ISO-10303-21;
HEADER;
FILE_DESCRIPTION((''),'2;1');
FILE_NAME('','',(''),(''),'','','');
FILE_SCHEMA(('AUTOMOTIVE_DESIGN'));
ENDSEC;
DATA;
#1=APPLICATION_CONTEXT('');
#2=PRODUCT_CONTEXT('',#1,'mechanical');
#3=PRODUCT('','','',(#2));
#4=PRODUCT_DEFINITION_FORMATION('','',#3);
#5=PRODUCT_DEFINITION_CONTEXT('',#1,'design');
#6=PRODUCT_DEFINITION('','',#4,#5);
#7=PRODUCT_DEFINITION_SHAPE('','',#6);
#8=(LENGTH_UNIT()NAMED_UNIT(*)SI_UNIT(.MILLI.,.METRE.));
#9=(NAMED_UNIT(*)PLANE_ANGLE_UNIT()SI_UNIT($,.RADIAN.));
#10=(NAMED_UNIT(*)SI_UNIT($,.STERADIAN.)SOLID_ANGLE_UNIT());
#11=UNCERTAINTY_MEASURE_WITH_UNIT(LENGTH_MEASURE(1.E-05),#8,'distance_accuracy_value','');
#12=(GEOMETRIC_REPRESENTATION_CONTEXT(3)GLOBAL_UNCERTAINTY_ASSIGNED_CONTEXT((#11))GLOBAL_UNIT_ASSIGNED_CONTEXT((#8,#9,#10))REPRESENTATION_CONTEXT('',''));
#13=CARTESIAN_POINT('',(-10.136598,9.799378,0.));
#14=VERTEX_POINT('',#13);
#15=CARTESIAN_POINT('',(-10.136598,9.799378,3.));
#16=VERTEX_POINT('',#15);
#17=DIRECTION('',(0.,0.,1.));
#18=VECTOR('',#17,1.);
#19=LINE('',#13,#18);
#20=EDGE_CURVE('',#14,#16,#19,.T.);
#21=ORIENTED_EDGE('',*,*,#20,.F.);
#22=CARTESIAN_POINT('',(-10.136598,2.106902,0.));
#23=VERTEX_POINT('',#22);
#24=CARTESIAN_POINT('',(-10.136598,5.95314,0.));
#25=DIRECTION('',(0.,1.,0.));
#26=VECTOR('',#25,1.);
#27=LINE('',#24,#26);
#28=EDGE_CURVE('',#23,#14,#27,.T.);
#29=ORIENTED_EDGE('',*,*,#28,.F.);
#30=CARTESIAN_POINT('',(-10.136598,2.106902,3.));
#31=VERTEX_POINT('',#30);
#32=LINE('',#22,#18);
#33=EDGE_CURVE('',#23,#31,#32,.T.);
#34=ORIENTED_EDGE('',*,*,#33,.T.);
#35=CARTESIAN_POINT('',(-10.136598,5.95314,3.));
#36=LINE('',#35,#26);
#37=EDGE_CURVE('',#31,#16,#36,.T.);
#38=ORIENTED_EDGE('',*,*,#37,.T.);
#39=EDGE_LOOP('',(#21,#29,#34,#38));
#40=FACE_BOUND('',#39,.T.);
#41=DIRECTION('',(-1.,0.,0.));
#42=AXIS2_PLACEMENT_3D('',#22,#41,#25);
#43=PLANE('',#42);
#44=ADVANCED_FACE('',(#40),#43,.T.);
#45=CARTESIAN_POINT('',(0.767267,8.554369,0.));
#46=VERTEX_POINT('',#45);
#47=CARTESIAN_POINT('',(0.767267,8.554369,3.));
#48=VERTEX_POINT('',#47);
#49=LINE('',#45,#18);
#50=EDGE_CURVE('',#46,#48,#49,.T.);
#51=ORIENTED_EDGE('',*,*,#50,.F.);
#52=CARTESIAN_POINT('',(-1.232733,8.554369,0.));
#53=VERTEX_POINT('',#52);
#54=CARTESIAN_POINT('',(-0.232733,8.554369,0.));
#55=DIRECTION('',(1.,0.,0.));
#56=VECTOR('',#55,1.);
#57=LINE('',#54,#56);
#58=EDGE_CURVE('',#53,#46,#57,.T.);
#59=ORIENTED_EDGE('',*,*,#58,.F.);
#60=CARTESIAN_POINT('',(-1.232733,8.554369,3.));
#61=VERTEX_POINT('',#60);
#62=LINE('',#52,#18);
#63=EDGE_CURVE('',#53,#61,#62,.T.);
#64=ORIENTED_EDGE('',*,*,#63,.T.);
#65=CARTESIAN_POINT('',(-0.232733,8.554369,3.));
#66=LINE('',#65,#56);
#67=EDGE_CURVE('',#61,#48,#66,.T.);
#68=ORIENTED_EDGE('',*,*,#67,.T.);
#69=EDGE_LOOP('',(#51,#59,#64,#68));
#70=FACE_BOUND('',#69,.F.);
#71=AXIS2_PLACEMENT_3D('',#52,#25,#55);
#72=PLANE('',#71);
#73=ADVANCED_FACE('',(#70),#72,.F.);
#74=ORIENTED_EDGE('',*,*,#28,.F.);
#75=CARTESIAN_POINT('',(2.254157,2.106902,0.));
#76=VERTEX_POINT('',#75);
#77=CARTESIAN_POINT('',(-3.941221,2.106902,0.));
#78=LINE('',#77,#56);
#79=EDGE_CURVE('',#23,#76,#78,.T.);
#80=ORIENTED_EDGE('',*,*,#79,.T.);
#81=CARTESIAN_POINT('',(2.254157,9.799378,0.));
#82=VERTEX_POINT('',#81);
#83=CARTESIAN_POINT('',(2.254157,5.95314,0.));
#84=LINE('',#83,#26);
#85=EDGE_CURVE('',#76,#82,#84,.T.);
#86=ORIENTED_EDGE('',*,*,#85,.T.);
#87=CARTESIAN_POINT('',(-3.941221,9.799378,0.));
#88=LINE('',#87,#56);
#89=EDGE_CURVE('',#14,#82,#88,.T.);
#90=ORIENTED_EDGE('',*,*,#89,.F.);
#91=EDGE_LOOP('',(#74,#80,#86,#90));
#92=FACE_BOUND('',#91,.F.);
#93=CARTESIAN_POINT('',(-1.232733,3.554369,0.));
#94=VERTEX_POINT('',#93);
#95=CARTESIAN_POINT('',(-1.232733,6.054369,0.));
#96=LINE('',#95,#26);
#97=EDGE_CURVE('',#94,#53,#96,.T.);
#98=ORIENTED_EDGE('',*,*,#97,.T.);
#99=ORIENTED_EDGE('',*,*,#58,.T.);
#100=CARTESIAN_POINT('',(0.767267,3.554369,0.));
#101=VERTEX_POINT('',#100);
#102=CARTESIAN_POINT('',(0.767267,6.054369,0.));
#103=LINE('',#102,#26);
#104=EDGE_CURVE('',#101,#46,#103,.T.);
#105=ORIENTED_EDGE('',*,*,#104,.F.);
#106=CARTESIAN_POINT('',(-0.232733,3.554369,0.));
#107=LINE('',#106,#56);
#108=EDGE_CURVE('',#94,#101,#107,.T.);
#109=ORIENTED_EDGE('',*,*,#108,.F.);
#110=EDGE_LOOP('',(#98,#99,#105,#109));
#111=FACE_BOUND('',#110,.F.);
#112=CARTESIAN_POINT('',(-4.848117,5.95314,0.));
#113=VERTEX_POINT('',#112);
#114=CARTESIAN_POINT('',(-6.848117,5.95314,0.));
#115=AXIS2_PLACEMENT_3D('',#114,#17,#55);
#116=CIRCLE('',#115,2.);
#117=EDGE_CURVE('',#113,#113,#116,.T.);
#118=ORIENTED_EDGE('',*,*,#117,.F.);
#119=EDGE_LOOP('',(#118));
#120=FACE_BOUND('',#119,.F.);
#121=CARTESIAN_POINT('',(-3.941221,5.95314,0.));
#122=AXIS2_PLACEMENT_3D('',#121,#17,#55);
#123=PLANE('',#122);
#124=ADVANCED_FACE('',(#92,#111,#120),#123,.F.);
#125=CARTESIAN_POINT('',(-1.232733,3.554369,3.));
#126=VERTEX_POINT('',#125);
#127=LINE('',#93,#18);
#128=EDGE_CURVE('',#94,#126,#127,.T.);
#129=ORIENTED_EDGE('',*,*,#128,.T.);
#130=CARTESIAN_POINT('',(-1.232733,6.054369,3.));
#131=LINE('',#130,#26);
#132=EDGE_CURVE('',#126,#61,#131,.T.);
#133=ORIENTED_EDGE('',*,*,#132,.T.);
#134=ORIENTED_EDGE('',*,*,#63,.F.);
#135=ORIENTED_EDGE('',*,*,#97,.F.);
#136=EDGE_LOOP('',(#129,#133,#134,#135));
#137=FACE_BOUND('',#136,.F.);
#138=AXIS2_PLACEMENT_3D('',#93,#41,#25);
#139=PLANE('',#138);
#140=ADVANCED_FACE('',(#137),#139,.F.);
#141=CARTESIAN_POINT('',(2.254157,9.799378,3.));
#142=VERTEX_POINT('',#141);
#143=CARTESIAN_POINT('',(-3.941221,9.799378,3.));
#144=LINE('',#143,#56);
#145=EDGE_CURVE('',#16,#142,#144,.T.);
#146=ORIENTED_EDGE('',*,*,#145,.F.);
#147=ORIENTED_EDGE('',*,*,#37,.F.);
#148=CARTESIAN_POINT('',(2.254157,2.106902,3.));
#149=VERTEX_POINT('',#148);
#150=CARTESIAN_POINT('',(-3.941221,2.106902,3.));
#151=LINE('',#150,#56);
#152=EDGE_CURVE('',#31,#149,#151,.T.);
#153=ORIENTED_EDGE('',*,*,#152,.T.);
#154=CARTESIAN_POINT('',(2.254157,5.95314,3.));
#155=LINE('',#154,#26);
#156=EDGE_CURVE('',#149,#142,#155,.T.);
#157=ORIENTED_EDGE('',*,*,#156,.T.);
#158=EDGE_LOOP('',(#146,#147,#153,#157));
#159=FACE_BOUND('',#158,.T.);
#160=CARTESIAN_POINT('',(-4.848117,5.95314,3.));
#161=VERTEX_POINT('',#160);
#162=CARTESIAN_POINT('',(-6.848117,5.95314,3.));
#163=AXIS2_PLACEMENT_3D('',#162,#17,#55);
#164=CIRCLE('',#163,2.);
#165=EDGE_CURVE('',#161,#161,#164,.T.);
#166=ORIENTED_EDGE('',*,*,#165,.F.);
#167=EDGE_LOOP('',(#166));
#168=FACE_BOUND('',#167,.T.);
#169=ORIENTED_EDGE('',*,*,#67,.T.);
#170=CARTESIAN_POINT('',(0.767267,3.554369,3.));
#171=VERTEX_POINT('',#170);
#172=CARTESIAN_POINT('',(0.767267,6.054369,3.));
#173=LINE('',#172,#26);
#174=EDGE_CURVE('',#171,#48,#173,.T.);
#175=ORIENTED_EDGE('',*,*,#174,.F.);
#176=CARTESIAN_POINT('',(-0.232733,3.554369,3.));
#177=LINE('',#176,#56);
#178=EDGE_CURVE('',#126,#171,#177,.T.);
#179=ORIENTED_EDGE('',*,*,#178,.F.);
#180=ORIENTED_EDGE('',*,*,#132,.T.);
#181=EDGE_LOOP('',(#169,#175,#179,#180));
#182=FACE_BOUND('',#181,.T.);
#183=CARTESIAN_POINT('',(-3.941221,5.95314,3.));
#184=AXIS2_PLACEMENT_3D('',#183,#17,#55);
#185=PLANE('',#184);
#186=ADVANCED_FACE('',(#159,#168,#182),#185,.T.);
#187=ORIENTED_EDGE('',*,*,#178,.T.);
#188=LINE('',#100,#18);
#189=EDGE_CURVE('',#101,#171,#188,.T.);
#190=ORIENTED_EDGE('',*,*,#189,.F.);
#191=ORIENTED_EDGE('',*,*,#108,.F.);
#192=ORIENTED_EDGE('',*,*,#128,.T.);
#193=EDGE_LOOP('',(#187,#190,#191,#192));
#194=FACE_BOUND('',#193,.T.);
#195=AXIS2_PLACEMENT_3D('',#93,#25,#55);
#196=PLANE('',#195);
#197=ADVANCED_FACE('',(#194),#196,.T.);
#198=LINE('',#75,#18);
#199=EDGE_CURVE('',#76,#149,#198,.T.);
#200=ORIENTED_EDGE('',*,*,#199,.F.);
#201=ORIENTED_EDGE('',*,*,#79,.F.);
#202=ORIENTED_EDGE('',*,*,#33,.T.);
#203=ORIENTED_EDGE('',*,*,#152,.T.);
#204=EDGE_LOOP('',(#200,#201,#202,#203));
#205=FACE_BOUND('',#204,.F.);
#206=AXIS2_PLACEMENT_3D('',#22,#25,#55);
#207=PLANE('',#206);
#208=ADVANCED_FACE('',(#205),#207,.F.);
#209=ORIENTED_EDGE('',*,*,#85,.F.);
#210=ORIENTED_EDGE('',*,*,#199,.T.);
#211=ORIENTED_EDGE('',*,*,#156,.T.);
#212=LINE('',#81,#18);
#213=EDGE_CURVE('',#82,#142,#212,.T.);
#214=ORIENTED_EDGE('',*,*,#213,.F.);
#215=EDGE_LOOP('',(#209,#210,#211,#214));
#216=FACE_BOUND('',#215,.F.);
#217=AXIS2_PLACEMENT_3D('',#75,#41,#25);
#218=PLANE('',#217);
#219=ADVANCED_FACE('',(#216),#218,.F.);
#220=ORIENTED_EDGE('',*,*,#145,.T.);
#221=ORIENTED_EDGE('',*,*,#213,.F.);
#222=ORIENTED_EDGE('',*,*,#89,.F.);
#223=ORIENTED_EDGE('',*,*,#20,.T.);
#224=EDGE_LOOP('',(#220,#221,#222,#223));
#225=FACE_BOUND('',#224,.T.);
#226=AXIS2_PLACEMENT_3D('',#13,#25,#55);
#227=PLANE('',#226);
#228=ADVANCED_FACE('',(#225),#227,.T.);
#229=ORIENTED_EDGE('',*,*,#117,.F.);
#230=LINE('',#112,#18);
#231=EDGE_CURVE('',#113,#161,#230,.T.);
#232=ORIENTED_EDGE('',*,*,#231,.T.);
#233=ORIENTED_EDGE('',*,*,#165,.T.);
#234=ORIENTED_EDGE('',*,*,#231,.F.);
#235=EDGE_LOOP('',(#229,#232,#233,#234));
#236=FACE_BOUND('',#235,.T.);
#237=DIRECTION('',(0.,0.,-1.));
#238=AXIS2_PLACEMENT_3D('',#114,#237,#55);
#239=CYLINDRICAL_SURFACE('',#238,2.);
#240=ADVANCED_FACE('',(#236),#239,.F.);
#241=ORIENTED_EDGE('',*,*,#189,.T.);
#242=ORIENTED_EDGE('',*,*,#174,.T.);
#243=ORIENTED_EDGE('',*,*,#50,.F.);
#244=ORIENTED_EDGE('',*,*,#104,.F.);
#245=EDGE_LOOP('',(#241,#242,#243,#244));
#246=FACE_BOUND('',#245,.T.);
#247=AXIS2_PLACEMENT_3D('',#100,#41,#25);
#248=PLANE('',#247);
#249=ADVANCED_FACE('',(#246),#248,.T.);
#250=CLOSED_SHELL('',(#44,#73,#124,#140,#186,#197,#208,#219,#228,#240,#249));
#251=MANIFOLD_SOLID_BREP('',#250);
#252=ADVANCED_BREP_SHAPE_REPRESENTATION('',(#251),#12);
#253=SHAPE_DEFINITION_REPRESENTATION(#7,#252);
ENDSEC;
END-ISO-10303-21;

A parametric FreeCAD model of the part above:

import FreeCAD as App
import Part
import Sketcher
from FreeCAD import Vector


def add_polygon(sketch, points):
    """Adds a closed chain of lines whose ends are joined by coincident constraints."""
    first, n = sketch.GeometryCount, len(points)
    for a, b in zip(points, points[1:] + points[:1]):
        sketch.addGeometry(Part.LineSegment(App.Vector(*a, 0), App.Vector(*b, 0)), False)
    for i in range(n):
        sketch.addConstraint(Sketcher.Constraint("Coincident", first + i, 2, first + (i + 1) % n, 1))

doc = App.newDocument("Part")
body = doc.addObject("PartDesign::Body", "Body")

sketch1 = body.newObject("Sketcher::SketchObject", "Sketch")
sketch1.AttachmentSupport = (doc.getObject("XY_Plane"), [""])
sketch1.MapMode = "FlatFace"
add_polygon(sketch1, [(-10.1, 9.8), (-10.1, 2.1), (2.3, 2.1), (2.3, 9.8)])
sketch1.addGeometry(Part.Circle(Vector(-6.8, 6, 0), Vector(0, 0, 1), 2), False)
add_polygon(sketch1, [(0.8, 3.6), (-1.2, 3.6), (-1.2, 8.6), (0.8, 8.6)])
sketch1.addConstraint([
    Sketcher.Constraint("Vertical", 0),
    Sketcher.Constraint("Horizontal", 1),
    Sketcher.Constraint("Vertical", 2),
    Sketcher.Constraint("Horizontal", 3),
    Sketcher.Constraint("Horizontal", 5),
    Sketcher.Constraint("Vertical", 6),
    Sketcher.Constraint("Horizontal", 7),
    Sketcher.Constraint("Vertical", 8),
    Sketcher.Constraint("Diameter", 4, 4.0),
    Sketcher.Constraint("DistanceX", 5, 2, 5, 1, 2.0),
    Sketcher.Constraint("DistanceY", 6, 1, 6, 2, 5.0),
    Sketcher.Constraint("DistanceX", 0, 2, -1, 1, 10.136598),
    Sketcher.Constraint("DistanceY", -1, 1, 0, 2, 2.106902),
    Sketcher.Constraint("DistanceX", 1, 1, 1, 2, 12.390755),
    Sketcher.Constraint("DistanceY", 0, 2, 0, 1, 7.692476),
    Sketcher.Constraint("DistanceY", -1, 1, 4, 3, 5.95314),
    Sketcher.Constraint("DistanceY", -1, 1, 5, 2, 3.554369),
    Sketcher.Constraint("DistanceX", 0, 2, 4, 3, 3.288481),
    Sketcher.Constraint("DistanceX", 5, 2, 1, 2, 3.48689),
])
pad1 = body.newObject("PartDesign::Pad", "Pad")
pad1.Profile = sketch1
pad1.Length = 3

doc.recompute()
